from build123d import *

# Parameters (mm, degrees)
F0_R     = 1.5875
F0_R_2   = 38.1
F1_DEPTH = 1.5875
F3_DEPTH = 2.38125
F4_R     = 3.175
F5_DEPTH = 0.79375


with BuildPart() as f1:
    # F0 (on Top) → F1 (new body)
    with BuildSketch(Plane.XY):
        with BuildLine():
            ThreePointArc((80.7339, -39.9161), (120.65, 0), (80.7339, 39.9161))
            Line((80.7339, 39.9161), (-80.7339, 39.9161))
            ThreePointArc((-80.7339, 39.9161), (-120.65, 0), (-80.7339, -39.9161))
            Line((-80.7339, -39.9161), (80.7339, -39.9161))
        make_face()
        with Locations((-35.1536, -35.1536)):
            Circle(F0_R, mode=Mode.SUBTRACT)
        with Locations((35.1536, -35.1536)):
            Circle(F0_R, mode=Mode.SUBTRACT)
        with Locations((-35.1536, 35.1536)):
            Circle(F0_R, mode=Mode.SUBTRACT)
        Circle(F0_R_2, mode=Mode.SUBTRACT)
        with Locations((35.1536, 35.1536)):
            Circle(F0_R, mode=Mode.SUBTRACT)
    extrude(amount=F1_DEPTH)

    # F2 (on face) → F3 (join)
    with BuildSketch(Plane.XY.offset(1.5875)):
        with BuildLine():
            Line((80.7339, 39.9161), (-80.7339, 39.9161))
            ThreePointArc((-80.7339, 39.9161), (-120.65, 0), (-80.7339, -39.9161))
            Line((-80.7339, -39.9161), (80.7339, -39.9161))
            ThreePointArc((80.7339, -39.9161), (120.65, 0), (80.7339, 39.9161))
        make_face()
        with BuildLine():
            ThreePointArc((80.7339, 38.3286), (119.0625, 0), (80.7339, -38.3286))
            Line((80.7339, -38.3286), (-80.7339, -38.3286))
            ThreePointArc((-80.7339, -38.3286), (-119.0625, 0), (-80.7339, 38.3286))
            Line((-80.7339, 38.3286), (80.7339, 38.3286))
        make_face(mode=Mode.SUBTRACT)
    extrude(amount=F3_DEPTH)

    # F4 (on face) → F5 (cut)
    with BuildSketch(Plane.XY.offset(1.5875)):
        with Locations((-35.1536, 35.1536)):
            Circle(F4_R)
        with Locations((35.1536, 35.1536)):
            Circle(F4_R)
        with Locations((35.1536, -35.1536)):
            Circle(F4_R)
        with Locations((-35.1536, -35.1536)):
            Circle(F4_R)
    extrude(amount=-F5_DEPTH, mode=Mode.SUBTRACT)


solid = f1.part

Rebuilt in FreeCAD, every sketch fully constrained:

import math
import FreeCAD as App
import Part
import Sketcher

V = App.Vector
Q = App.Units.Quantity

doc = App.newDocument("Part")
body = doc.addObject("PartDesign::Body", "Body")

# Sketch on XY plane
sketch1 = body.newObject("Sketcher::SketchObject", "Sketch")
sketch1.AttachmentSupport = (doc.getObject("XY_Plane"), [""])
sketch1.MapMode = "FlatFace"
sketch1.addGeometry([
    Part.ArcOfCircle(Part.Circle(V(80.7, 0, 0), V(0, 0, 1), 39.9), math.radians(-90), math.radians(90)),  # 0
    Part.LineSegment(V(80.7, 39.9, 0), V(-80.7, 39.9, 0)),  # 1
    Part.ArcOfCircle(Part.Circle(V(-80.7, 0, 0), V(0, 0, 1), 39.9), math.radians(90), math.radians(270)),  # 2
    Part.LineSegment(V(-80.7, -39.9, 0), V(80.7, -39.9, 0)),  # 3
    Part.Circle(V(-35.2, -35.2, 0), V(0, 0, 1), 1.6),  # 4
    Part.Circle(V(35.2, -35.2, 0), V(0, 0, 1), 1.6),  # 5
    Part.Circle(V(-35.2, 35.2, 0), V(0, 0, 1), 1.6),  # 6
    Part.Circle(V(0, 0, 0), V(0, 0, 1), 38.1),  # 7
    Part.Circle(V(35.2, 35.2, 0), V(0, 0, 1), 1.6),  # 8
], False)
sketch1.addConstraint([
    Sketcher.Constraint("Tangent", 0, 2, 1, 1),
    Sketcher.Constraint("Tangent", 1, 2, 2, 1),
    Sketcher.Constraint("Tangent", 2, 2, 3, 1),
    Sketcher.Constraint("Tangent", 3, 2, 0, 1),
    Sketcher.Constraint("Horizontal", 1),
    Sketcher.Constraint("Horizontal", 3),
    Sketcher.Constraint("Coincident", 7, 3, -1, 1),
    Sketcher.Constraint("Equal", 4, 5),
    Sketcher.Constraint("Equal", 5, 6),
    Sketcher.Constraint("Equal", 6, 8),
    Sketcher.Constraint("Symmetric", 0, 3, 2, 3, -1, 1),
    Sketcher.Constraint("Symmetric", 5, 3, 6, 3, -1, 1),
    Sketcher.Constraint("Symmetric", 4, 3, 8, 3, -1, 1),
    Sketcher.Constraint("Symmetric", 4, 3, 5, 3, -2),
    Sketcher.Constraint("Diameter", 7, Q("3 in")),
    Sketcher.Constraint("Diameter", 4, Q("0.125 in")),
    Sketcher.Constraint("Radius", 0, Q("1.5715 in")),
    Sketcher.Constraint("DistanceX", 1, 2, 1, 1, Q("6.357 in")),
    Sketcher.Constraint("DistanceX", 4, 3, -1, 1, Q("1.384 in")),
    Sketcher.Constraint("DistanceY", 4, 3, -1, 1, Q("1.384 in")),
])
pad1 = body.newObject("PartDesign::Pad", "Pad")
pad1.Profile = sketch1
pad1.Length = Q("0.0625 in")

# Sketch on XY plane
sketch2 = body.newObject("Sketcher::SketchObject", "Sketch001")
sketch2.AttachmentSupport = (doc.getObject("XY_Plane"), [""])
sketch2.MapMode = "FlatFace"
sketch2.AttachmentOffset = App.Placement(V(0, 0, 0.0625 * 25.4), App.Rotation())
sketch2.addGeometry([
    Part.LineSegment(V(81, 40, 0), V(-81, 40, 0)),  # 0
    Part.ArcOfCircle(Part.Circle(V(-81, 0, 0), V(0, 0, 1), 40), math.radians(90), math.radians(270)),  # 1
    Part.LineSegment(V(-81, -40, 0), V(81, -40, 0)),  # 2
    Part.ArcOfCircle(Part.Circle(V(81, 0, 0), V(0, 0, 1), 40), math.radians(-90), math.radians(90)),  # 3
    Part.LineSegment(V(-81, 38, 0), V(81, 38, 0)),  # 4
    Part.ArcOfCircle(Part.Circle(V(81, 0, 0), V(0, 0, 1), 38), math.radians(-90), math.radians(90)),  # 5
    Part.LineSegment(V(81, -38, 0), V(-81, -38, 0)),  # 6
    Part.ArcOfCircle(Part.Circle(V(-81, 0, 0), V(0, 0, 1), 38), math.radians(90), math.radians(270)),  # 7
], False)
sketch2.addConstraint([
    Sketcher.Constraint("Tangent", 0, 2, 1, 1),
    Sketcher.Constraint("Tangent", 1, 2, 2, 1),
    Sketcher.Constraint("Tangent", 2, 2, 3, 1),
    Sketcher.Constraint("Tangent", 3, 2, 0, 1),
    Sketcher.Constraint("Tangent", 4, 2, 5, 2),
    Sketcher.Constraint("Tangent", 5, 1, 6, 1),
    Sketcher.Constraint("Tangent", 6, 2, 7, 2),
    Sketcher.Constraint("Tangent", 7, 1, 4, 1),
    Sketcher.Constraint("Horizontal", 0),
    Sketcher.Constraint("Horizontal", 2),
    Sketcher.Constraint("Horizontal", 4),
    Sketcher.Constraint("Horizontal", 6),
    Sketcher.Constraint("Coincident", 5, 3, 3, 3),
    Sketcher.Constraint("Symmetric", 1, 3, 3, 3, -1, 1),
    Sketcher.Constraint("Vertical", 7, 3, 0, 2),
    Sketcher.Constraint("Radius", 5, Q("1.509 in")),
    Sketcher.Constraint("Radius", 1, Q("1.5715 in")),
    Sketcher.Constraint("DistanceX", 0, 2, 0, 1, Q("6.357 in")),
])
pad2 = body.newObject("PartDesign::Pad", "Pad001")
pad2.Profile = sketch2
pad2.Length = Q("0.09375 in")

# Sketch on XY plane
sketch3 = body.newObject("Sketcher::SketchObject", "Sketch002")
sketch3.AttachmentSupport = (doc.getObject("XY_Plane"), [""])
sketch3.MapMode = "FlatFace"
sketch3.AttachmentOffset = App.Placement(V(0, 0, 0.0625 * 25.4), App.Rotation())
sketch3.addGeometry([
    Part.Circle(V(-35.2, 35.2, 0), V(0, 0, 1), 3.2),
    Part.Circle(V(35.2, 35.2, 0), V(0, 0, 1), 3.2),
    Part.Circle(V(35.2, -35.2, 0), V(0, 0, 1), 3.2),
    Part.Circle(V(-35.2, -35.2, 0), V(0, 0, 1), 3.2),
], False)
sketch3.addConstraint([
    Sketcher.Constraint("Equal", 0, 1),
    Sketcher.Constraint("Equal", 1, 2),
    Sketcher.Constraint("Equal", 2, 3),
    Sketcher.Constraint("Symmetric", 0, 3, 2, 3, -1, 1),
    Sketcher.Constraint("Symmetric", 1, 3, 3, 3, -1, 1),
    Sketcher.Constraint("Symmetric", 0, 3, 1, 3, -2),
    Sketcher.Constraint("Diameter", 0, Q("0.25 in")),
    Sketcher.Constraint("DistanceX", 0, 3, -1, 1, Q("1.384 in")),
    Sketcher.Constraint("DistanceY", -1, 1, 0, 3, Q("1.384 in")),
])
pocket1 = body.newObject("PartDesign::Pocket", "Pocket")
pocket1.Profile = sketch3
pocket1.Length = Q("0.03125 in")

doc.recompute()
